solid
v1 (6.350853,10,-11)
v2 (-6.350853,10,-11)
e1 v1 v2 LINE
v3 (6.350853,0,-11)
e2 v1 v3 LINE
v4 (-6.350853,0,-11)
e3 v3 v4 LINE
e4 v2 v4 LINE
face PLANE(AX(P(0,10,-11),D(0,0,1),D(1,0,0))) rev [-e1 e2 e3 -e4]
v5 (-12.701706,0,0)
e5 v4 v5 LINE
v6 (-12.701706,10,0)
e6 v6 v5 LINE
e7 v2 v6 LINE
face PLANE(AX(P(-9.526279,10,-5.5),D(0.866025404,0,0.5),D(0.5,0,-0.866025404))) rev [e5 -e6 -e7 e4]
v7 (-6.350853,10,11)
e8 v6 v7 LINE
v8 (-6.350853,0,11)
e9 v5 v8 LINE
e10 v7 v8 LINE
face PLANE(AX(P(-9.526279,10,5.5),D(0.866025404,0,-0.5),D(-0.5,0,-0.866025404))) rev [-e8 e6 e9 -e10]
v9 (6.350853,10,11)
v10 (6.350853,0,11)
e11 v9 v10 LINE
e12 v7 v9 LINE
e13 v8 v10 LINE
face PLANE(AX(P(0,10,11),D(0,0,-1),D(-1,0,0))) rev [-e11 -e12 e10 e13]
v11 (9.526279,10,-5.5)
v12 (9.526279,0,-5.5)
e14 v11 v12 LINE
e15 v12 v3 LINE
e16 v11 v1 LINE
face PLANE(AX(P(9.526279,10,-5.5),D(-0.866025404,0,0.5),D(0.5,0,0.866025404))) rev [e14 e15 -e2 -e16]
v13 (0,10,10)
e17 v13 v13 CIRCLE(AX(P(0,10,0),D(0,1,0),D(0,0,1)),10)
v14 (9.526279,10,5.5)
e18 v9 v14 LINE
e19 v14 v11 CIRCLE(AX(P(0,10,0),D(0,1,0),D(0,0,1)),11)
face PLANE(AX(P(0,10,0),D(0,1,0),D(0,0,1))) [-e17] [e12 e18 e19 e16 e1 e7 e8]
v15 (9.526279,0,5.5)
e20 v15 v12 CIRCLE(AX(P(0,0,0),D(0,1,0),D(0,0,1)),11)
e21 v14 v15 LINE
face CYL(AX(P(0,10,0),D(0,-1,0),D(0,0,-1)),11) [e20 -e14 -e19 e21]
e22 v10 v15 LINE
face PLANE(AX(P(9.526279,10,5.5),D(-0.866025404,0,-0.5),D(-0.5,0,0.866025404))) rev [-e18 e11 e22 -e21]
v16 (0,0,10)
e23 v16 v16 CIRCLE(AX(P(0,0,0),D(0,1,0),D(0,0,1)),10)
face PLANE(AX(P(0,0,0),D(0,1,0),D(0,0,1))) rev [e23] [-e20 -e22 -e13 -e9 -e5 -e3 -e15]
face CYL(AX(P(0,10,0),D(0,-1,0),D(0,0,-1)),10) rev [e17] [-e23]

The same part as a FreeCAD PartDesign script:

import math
import FreeCAD as App
import Part
import Sketcher
Q = App.Units.Quantity

doc = App.newDocument("Part")
body = doc.addObject("PartDesign::Body", "Body")

# Sketch on XZ plane
sketch1 = body.newObject("Sketcher::SketchObject", "Sketch")
sketch1.AttachmentSupport = (doc.getObject("XZ_Plane"), [""])
sketch1.MapMode = "FlatFace"
sketch1.addGeometry([
    Part.LineSegment(App.Vector(10, -6, 0), App.Vector(6, -11, 0)),  # 0
    Part.LineSegment(App.Vector(6, -11, 0), App.Vector(-6, -11, 0)),  # 1
    Part.LineSegment(App.Vector(-6, -11, 0), App.Vector(-10, -6, 0)),  # 2
    Part.LineSegment(App.Vector(-10, -6, 0), App.Vector(-13, 0, 0)),  # 3
    Part.LineSegment(App.Vector(-13, 0, 0), App.Vector(-10, 6, 0)),  # 4
    Part.LineSegment(App.Vector(-10, 6, 0), App.Vector(-6, 11, 0)),  # 5
    Part.LineSegment(App.Vector(-6, 11, 0), App.Vector(6, 11, 0)),  # 6
    Part.LineSegment(App.Vector(6, 11, 0), App.Vector(10, 6, 0)),  # 7
    Part.ArcOfCircle(Part.Circle(App.Vector(0, 0, 0), App.Vector(0, 0, 1), 11), math.radians(-30), math.radians(30)),  # 8
    Part.Circle(App.Vector(0, 0, 0), App.Vector(0, 0, 1), 10),  # 9
], False)
sketch1.addConstraint([
    Sketcher.Constraint("Coincident", 0, 2, 1, 1),
    Sketcher.Constraint("Coincident", 1, 2, 2, 1),
    Sketcher.Constraint("Coincident", 2, 2, 3, 1),
    Sketcher.Constraint("Coincident", 3, 2, 4, 1),
    Sketcher.Constraint("Coincident", 4, 2, 5, 1),
    Sketcher.Constraint("Coincident", 5, 2, 6, 1),
    Sketcher.Constraint("Coincident", 6, 2, 7, 1),
    Sketcher.Constraint("Tangent", 7, 2, 8, 2),
    Sketcher.Constraint("Tangent", 8, 1, 0, 1),
    Sketcher.Constraint("Horizontal", 1),
    Sketcher.Constraint("Horizontal", 6),
    Sketcher.Constraint("Coincident", 8, 3, -1, 1),
    Sketcher.Constraint("Coincident", 9, 3, -1, 1),
    Sketcher.Constraint("Symmetric", 0, 2, 5, 2, -1, 1),
    Sketcher.Constraint("Symmetric", 2, 2, 7, 2, -1, 1),
    Sketcher.Constraint("Symmetric", 4, 2, 8, 1, -1, 1),
    Sketcher.Constraint("PointOnObject", 3, 2, -1),
    Sketcher.Constraint("Parallel", 2, 3),
    Sketcher.Constraint("Parallel", 0, 4),
    Sketcher.Constraint("Parallel", 3, 7),
    Sketcher.Constraint("Equal", 2, 3),
    Sketcher.Constraint("Diameter", 9, 20.0),
    Sketcher.Constraint("Radius", 8, 11.0),
    Sketcher.Constraint("Angle", 0, Q("-120 deg")),
])
pad1 = body.newObject("PartDesign::Pad", "Pad")
pad1.Profile = sketch1
pad1.Length = 10
pad1.Reversed = True

doc.recompute()
